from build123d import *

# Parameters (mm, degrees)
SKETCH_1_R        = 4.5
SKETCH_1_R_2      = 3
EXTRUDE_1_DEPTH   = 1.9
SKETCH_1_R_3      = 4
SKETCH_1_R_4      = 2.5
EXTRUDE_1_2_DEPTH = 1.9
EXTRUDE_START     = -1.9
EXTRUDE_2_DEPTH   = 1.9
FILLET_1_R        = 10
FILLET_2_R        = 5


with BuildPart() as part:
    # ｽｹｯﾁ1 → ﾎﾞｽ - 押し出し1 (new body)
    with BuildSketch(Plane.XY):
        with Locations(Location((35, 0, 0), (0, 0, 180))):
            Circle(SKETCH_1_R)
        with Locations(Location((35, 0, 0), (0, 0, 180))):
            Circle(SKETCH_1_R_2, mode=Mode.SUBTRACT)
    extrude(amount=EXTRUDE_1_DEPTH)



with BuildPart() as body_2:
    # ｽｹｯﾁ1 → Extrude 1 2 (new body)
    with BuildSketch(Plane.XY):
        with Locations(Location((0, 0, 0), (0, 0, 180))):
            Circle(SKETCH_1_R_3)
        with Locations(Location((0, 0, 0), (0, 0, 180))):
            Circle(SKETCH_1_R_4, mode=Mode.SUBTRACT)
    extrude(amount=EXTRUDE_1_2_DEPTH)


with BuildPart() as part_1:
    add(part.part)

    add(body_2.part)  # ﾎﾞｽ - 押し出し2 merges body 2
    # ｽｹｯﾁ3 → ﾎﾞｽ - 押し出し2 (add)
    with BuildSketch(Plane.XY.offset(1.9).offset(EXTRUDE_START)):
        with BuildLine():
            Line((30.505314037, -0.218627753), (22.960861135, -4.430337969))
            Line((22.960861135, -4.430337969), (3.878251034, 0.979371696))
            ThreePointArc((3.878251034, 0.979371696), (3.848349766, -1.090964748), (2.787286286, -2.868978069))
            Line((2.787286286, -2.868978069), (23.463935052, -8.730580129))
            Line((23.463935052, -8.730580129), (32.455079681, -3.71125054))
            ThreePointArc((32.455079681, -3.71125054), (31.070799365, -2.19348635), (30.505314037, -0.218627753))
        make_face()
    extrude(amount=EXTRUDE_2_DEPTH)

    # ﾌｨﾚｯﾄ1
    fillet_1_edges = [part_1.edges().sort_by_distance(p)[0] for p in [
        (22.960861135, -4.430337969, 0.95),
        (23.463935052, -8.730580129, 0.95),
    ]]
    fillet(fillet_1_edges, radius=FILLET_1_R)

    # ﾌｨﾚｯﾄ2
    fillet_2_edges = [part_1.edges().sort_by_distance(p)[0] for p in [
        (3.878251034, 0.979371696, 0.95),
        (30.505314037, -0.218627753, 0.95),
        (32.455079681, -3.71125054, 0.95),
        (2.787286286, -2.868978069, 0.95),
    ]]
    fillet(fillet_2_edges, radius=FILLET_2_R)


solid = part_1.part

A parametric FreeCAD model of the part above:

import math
import FreeCAD as App
import Part
import Sketcher
Q = App.Units.Quantity


def edges_at(feature, points):
    """Names of the edges that pass closest to the given points."""
    edges = feature.Shape.Edges
    near = lambda p: min(range(len(edges)), key=lambda i: edges[i].distToShape(Part.Vertex(*p))[0])
    return sorted({f"Edge{near(p) + 1}" for p in points})

doc = App.newDocument("Part")
body = doc.addObject("PartDesign::Body", "Body")

# Sketch on XY plane
sketch1 = body.newObject("Sketcher::SketchObject", "Sketch")
sketch1.AttachmentSupport = (doc.getObject("XY_Plane"), [""])
sketch1.MapMode = "FlatFace"
sketch1.addGeometry(Part.Circle(App.Vector(35, 0, 0), App.Vector(0, 0, 1), 4.5), False)
sketch1.addGeometry(Part.Circle(App.Vector(35, 0, 0), App.Vector(0, 0, 1), 3), False)
sketch1.addConstraint(Sketcher.Constraint("Coincident", 1, 3, 0, 3))
sketch1.addConstraint(Sketcher.Constraint("PointOnObject", 0, 3, -1))
sketch1.addConstraint(Sketcher.Constraint("Diameter", 0, Q("9 mm")))
sketch1.addConstraint(Sketcher.Constraint("Diameter", 1, Q("6 mm")))
sketch1.addConstraint(Sketcher.Constraint("DistanceX", -1, 1, 0, 3, Q("35 mm")))
pad1 = body.newObject("PartDesign::Pad", "Pad")
pad1.Profile = sketch1
pad1.Length = 1.9
body2 = doc.addObject("PartDesign::Body", "Body001")

# Sketch on XY plane
sketch2 = body2.newObject("Sketcher::SketchObject", "Sketch001")
sketch2.AttachmentSupport = (doc.getObject("XY_Plane001"), [""])
sketch2.MapMode = "FlatFace"
sketch2.addGeometry(Part.Circle(App.Vector(0, 0, 0), App.Vector(0, 0, 1), 4), False)
sketch2.addGeometry(Part.Circle(App.Vector(0, 0, 0), App.Vector(0, 0, 1), 2.5), False)
sketch2.addConstraint(Sketcher.Constraint("Coincident", 0, 3, -1, 1))
sketch2.addConstraint(Sketcher.Constraint("Coincident", 1, 3, -1, 1))
sketch2.addConstraint(Sketcher.Constraint("Diameter", 0, Q("8 mm")))
sketch2.addConstraint(Sketcher.Constraint("Diameter", 1, Q("5 mm")))
pad2 = body2.newObject("PartDesign::Pad", "Pad001")
pad2.Profile = sketch2
pad2.Length = 1.9
body.AllowCompound = True
doc.recompute()

boolean = body.newObject("PartDesign::Boolean", "Boolean")
boolean.Type = "Fuse"
boolean.addObjects([body2])

# Sketch on XY plane
sketch3 = body.newObject("Sketcher::SketchObject", "Sketch002")
sketch3.AttachmentSupport = (doc.getObject("XY_Plane"), [""])
sketch3.MapMode = "FlatFace"
sketch3.addGeometry(Part.LineSegment(App.Vector(30.5, -0.2, 0), App.Vector(23, -4.4, 0)), False)
sketch3.addGeometry(Part.LineSegment(App.Vector(23, -4.4, 0), App.Vector(3.9, 1, 0)), False)
sketch3.addGeometry(Part.ArcOfCircle(Part.Circle(App.Vector(0, 0, 0), App.Vector(0, 0, 1), 4), math.radians(-46), math.radians(14)), False)
sketch3.addGeometry(Part.LineSegment(App.Vector(2.8, -2.9, 0), App.Vector(23.5, -8.7, 0)), False)
sketch3.addGeometry(Part.LineSegment(App.Vector(23.5, -8.7, 0), App.Vector(32.5, -3.7, 0)), False)
sketch3.addGeometry(Part.ArcOfCircle(Part.Circle(App.Vector(35, 0, 0), App.Vector(0, 0, 1), 4.5), math.radians(-177), math.radians(-124)), False)
sketch3.addConstraint(Sketcher.Constraint("Coincident", 0, 2, 1, 1))
sketch3.addConstraint(Sketcher.Constraint("Coincident", 1, 2, 2, 2))
sketch3.addConstraint(Sketcher.Constraint("Coincident", 2, 1, 3, 1))
sketch3.addConstraint(Sketcher.Constraint("Coincident", 3, 2, 4, 1))
sketch3.addConstraint(Sketcher.Constraint("Coincident", 4, 2, 5, 2))
sketch3.addConstraint(Sketcher.Constraint("Coincident", 5, 1, 0, 1))
sketch3.addConstraint(Sketcher.Constraint("Coincident", 2, 3, -1, 1))
sketch3.addConstraint(Sketcher.Constraint("PointOnObject", 5, 3, -1))
sketch3.addConstraint(Sketcher.Constraint("Parallel", 1, 3))
sketch3.addConstraint(Sketcher.Constraint("Parallel", 0, 4))
sketch3.addConstraint(Sketcher.Constraint("Radius", 2, Q("4 mm")))
sketch3.addConstraint(Sketcher.Constraint("Radius", 5, Q("4.5 mm")))
sketch3.addConstraint(Sketcher.Constraint("DistanceX", -1, 1, 5, 3, Q("35 mm")))
sketch3.addConstraint(Sketcher.Constraint("DistanceY", 5, 1, 1, 2, Q("1.197999 mm")))
sketch3.addConstraint(Sketcher.Constraint("Distance", 4, Q("10.297298 mm")))
sketch3.addConstraint(Sketcher.Constraint("Distance", 1, Q("19.83459 mm")))
sketch3.addConstraint(Sketcher.Constraint("DistanceX", -1, 1, 0, 2, Q("22.960861 mm")))
sketch3.addConstraint(Sketcher.Constraint("DistanceX", -1, 1, 1, 2, Q("3.878251 mm")))
sketch3.addConstraint(Sketcher.Constraint("DistanceY", 2, 1, -1, 1, Q("2.868978 mm")))
pad3 = body.newObject("PartDesign::Pad", "Pad002")
pad3.Profile = sketch3
pad3.Length = 1.9
doc.recompute()

fillet = body.newObject("PartDesign::Fillet", "Fillet")
fillet.Base = (pad3, edges_at(pad3, [(22.961, -4.43, 0.95), (23.464, -8.731, 0.95)]))
fillet.Radius = 10
doc.recompute()

fillet2 = body.newObject("PartDesign::Fillet", "Fillet001")
fillet2.Base = (fillet, edges_at(fillet, [
    (3.878, 0.979, 0.95),
    (30.505, -0.219, 0.95),
    (32.455, -3.711, 0.95),
    (2.787, -2.869, 0.95),
]))
fillet2.Radius = 5

doc.recompute()
